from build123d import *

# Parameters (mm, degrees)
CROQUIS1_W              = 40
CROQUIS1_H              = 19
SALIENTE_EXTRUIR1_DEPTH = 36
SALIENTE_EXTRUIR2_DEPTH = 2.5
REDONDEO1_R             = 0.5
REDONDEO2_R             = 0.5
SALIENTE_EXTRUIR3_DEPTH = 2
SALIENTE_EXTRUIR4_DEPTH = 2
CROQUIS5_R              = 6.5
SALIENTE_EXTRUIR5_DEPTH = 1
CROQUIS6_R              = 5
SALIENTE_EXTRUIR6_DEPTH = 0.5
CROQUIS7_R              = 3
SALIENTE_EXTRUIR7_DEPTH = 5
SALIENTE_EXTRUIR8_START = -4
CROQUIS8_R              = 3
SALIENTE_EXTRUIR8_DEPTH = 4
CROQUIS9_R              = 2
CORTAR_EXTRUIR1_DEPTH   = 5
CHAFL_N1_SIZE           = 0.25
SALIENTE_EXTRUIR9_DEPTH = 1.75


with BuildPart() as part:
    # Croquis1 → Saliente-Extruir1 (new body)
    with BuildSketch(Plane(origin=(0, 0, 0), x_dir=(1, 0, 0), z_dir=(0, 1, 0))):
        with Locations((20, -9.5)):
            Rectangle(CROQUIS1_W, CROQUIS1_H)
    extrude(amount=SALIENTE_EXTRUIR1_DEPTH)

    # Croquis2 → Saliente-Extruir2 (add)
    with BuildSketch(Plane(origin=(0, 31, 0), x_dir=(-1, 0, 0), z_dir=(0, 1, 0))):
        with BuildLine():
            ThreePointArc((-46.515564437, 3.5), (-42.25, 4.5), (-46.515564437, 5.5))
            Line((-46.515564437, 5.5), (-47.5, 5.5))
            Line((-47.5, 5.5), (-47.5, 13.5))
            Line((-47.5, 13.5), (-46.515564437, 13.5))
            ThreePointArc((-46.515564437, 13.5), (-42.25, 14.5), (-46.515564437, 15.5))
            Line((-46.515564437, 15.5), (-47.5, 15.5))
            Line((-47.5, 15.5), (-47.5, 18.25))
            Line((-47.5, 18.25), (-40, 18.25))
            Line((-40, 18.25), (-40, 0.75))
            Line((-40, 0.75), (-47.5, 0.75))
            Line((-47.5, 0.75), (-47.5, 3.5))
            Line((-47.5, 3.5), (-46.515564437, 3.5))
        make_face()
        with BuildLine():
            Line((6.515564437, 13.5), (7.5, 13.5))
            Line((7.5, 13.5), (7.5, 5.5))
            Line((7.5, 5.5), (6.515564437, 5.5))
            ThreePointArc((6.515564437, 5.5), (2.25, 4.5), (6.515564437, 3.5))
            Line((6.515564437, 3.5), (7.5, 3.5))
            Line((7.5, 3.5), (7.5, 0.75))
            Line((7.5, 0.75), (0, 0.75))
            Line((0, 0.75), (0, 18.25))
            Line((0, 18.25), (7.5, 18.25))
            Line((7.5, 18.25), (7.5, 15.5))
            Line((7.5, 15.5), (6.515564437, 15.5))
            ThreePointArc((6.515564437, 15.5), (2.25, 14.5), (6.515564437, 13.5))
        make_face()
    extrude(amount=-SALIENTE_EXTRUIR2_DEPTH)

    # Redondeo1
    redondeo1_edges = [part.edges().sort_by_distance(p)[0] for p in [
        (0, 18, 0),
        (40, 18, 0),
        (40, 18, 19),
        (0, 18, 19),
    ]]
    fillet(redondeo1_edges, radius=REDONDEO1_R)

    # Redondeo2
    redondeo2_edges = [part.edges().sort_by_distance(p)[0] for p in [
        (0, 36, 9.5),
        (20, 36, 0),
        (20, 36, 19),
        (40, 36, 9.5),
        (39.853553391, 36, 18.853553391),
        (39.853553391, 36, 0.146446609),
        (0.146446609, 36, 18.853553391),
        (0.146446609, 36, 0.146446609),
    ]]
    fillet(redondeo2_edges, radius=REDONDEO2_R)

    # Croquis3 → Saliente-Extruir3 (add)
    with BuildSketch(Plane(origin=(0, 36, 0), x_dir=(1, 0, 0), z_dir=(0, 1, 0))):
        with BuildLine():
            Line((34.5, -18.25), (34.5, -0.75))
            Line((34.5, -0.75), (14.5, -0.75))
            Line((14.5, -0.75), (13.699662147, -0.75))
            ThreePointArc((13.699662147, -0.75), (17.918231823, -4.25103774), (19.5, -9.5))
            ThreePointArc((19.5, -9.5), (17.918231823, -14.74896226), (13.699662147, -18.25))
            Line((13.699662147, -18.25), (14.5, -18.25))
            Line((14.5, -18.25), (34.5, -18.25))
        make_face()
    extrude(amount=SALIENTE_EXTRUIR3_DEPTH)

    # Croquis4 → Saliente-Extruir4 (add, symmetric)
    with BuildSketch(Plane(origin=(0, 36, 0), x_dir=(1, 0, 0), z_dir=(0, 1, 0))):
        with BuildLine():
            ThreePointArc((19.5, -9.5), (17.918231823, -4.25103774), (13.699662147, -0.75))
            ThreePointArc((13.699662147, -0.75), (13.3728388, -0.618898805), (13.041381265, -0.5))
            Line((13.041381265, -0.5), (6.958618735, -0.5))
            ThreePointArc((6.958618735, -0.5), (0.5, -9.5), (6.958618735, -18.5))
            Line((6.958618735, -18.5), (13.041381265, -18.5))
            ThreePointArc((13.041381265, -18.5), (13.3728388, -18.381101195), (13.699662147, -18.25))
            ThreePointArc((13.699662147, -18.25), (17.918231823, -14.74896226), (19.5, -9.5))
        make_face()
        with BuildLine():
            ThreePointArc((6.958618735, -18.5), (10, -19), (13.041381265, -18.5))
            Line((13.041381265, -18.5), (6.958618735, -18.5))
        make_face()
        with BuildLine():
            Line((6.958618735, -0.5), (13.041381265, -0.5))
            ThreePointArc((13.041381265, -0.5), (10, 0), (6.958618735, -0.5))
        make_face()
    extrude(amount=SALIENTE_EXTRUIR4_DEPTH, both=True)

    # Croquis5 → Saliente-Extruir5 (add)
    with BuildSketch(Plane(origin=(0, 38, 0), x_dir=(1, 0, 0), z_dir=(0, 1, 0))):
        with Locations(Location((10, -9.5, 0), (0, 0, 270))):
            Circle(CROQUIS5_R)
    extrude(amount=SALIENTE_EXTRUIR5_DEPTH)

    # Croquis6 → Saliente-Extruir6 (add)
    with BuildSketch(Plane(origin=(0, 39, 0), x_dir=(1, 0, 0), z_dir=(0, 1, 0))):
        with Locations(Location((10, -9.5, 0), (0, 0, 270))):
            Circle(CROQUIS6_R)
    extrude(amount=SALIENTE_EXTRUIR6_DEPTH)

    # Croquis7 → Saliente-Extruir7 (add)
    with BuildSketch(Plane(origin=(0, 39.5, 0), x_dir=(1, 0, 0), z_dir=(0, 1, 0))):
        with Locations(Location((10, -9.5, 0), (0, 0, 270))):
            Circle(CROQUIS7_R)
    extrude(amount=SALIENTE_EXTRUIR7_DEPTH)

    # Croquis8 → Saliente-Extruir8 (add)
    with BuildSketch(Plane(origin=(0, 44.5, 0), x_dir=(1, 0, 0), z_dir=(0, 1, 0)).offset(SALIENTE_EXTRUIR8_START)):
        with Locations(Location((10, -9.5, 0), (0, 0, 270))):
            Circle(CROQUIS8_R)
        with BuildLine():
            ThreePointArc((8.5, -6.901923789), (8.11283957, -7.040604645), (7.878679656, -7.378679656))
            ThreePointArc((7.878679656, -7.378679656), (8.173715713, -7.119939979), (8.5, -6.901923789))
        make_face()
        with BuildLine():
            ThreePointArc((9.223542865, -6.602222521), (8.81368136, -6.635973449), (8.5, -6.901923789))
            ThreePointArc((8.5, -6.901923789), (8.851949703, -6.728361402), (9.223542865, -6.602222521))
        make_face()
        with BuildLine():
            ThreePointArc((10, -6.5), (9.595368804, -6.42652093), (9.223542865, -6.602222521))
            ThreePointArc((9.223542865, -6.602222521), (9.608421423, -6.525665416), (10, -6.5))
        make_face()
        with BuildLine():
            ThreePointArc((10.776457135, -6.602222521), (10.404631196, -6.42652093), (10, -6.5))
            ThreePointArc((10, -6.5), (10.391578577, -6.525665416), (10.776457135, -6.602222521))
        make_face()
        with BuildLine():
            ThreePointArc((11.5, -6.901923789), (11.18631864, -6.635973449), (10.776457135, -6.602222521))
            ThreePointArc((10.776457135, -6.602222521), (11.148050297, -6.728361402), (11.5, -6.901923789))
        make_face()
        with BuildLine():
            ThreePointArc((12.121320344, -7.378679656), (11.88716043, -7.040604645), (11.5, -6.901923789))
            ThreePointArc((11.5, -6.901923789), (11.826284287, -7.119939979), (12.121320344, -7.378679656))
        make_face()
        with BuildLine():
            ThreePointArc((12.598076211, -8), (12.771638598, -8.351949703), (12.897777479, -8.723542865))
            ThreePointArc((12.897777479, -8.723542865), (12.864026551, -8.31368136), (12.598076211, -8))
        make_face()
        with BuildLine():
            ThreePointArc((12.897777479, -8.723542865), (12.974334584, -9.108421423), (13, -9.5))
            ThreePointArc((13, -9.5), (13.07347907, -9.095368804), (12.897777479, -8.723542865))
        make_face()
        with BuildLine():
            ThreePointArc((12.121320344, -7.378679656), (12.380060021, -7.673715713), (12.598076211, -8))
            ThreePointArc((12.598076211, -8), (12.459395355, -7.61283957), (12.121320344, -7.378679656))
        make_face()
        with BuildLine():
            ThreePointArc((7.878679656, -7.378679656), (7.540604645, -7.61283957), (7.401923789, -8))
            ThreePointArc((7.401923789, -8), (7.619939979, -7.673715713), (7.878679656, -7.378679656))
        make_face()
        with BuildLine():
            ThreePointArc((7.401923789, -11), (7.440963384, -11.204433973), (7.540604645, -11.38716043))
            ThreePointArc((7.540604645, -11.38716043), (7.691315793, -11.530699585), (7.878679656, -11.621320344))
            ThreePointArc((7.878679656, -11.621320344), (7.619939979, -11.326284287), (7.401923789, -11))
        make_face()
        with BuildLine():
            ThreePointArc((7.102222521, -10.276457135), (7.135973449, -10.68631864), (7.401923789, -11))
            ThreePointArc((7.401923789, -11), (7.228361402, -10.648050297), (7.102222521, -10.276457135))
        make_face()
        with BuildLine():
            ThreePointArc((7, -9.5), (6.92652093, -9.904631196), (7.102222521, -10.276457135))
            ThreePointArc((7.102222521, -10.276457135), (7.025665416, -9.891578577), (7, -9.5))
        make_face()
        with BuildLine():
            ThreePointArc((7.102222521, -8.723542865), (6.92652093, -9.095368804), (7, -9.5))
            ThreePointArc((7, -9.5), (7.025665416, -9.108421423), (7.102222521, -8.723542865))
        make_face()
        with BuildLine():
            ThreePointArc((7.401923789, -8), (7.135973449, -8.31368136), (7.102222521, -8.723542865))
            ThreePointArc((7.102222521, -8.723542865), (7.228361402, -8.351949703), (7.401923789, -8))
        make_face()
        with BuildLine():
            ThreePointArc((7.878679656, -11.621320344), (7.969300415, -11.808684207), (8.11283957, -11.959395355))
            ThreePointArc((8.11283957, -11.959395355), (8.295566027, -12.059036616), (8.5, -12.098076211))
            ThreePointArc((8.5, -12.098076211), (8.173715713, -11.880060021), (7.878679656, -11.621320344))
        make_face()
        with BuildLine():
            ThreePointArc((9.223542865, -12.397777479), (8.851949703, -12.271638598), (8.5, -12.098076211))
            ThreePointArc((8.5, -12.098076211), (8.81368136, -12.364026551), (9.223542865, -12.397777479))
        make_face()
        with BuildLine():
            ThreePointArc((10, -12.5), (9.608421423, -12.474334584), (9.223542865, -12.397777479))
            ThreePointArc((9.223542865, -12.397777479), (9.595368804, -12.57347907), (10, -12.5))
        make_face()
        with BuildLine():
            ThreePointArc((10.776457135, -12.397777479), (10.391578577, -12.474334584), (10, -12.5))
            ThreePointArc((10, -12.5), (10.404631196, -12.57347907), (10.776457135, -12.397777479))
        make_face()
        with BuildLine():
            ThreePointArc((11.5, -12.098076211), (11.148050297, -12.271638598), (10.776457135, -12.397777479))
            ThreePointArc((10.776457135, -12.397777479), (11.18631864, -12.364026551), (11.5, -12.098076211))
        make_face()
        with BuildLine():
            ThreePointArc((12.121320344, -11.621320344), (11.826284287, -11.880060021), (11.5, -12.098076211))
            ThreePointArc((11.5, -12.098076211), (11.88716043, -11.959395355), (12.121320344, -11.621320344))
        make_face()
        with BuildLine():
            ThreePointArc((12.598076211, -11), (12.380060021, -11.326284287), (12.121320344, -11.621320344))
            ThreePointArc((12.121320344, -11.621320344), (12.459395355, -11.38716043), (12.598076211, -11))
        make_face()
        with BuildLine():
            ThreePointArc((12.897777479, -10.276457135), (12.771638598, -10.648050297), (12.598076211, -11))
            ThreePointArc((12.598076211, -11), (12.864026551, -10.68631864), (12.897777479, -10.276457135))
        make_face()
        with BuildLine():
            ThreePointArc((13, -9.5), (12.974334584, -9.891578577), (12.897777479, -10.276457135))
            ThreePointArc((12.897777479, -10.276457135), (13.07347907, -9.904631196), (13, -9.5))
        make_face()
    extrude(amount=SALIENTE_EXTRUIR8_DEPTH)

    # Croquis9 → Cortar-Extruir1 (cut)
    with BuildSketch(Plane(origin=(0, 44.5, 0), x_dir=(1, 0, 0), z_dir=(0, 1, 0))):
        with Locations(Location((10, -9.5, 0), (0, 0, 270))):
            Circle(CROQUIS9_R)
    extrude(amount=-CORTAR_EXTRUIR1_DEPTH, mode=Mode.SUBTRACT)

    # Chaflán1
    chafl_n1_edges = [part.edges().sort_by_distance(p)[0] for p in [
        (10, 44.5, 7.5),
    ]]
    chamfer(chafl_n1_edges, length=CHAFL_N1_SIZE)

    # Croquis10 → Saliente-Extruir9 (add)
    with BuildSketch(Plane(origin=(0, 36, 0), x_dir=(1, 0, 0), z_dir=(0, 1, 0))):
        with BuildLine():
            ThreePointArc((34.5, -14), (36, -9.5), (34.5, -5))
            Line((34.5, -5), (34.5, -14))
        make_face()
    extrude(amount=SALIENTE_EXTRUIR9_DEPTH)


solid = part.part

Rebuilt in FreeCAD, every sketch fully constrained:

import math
import FreeCAD as App
import Part
import Sketcher
Q = App.Units.Quantity


def edges_at(feature, points):
    """Names of the edges that pass closest to the given points."""
    edges = feature.Shape.Edges
    near = lambda p: min(range(len(edges)), key=lambda i: edges[i].distToShape(Part.Vertex(*p))[0])
    return sorted({f"Edge{near(p) + 1}" for p in points})


def add_polygon(sketch, points):
    """Adds a closed chain of lines whose ends are joined by coincident constraints."""
    first, n = sketch.GeometryCount, len(points)
    for a, b in zip(points, points[1:] + points[:1]):
        sketch.addGeometry(Part.LineSegment(App.Vector(*a, 0), App.Vector(*b, 0)), False)
    for i in range(n):
        sketch.addConstraint(Sketcher.Constraint("Coincident", first + i, 2, first + (i + 1) % n, 1))

doc = App.newDocument("Part")
body = doc.addObject("PartDesign::Body", "Body")

sketch1 = body.newObject("Sketcher::SketchObject", "Sketch")
sketch1.AttachmentSupport = (doc.getObject("XZ_Plane"), [""])
sketch1.MapMode = "FlatFace"
add_polygon(sketch1, [(0, 0), (0, 19), (40, 19), (40, 0)])
sketch1.addConstraint([
    Sketcher.Constraint("Vertical", 0),
    Sketcher.Constraint("Horizontal", 1),
    Sketcher.Constraint("Vertical", 2),
    Sketcher.Constraint("Horizontal", 3),
    Sketcher.Constraint("Coincident", 3, 2, -1, 1),
    Sketcher.Constraint("DistanceX", 1, 1, 1, 2, Q("40 mm")),
    Sketcher.Constraint("DistanceY", 0, 1, 0, 2, Q("19 mm")),
])
pad1 = body.newObject("PartDesign::Pad", "Pad")
pad1.Profile = sketch1
pad1.Length = 36
pad1.Reversed = True

sketch2 = body.newObject("Sketcher::SketchObject", "Sketch001")
sketch2.AttachmentSupport = (doc.getObject("XZ_Plane"), [""])
sketch2.MapMode = "FlatFace"
sketch2.AttachmentOffset = App.Placement(App.Vector(0, 0, -31), App.Rotation())
sketch2.addGeometry([
    Part.ArcOfCircle(Part.Circle(App.Vector(44.5, 4.5, 0), App.Vector(0, 0, 1), 2.2), math.radians(26), math.radians(334)),
    Part.LineSegment(App.Vector(46.5, 3.5, 0), App.Vector(47.5, 3.5, 0)),
    Part.LineSegment(App.Vector(47.5, 3.5, 0), App.Vector(47.5, 0.8, 0)),
    Part.LineSegment(App.Vector(47.5, 0.8, 0), App.Vector(40, 0.8, 0)),
    Part.LineSegment(App.Vector(40, 0.8, 0), App.Vector(40, 18.2, 0)),
    Part.LineSegment(App.Vector(40, 18.2, 0), App.Vector(47.5, 18.2, 0)),
    Part.LineSegment(App.Vector(47.5, 18.2, 0), App.Vector(47.5, 15.5, 0)),
    Part.LineSegment(App.Vector(47.5, 15.5, 0), App.Vector(46.5, 15.5, 0)),
    Part.ArcOfCircle(Part.Circle(App.Vector(44.5, 14.5, 0), App.Vector(0, 0, 1), 2.2), math.radians(26), math.radians(334)),
    Part.LineSegment(App.Vector(46.5, 13.5, 0), App.Vector(47.5, 13.5, 0)),
    Part.LineSegment(App.Vector(47.5, 13.5, 0), App.Vector(47.5, 5.5, 0)),
    Part.LineSegment(App.Vector(47.5, 5.5, 0), App.Vector(46.5, 5.5, 0)),
    Part.LineSegment(App.Vector(-7.5, 13.5, 0), App.Vector(-6.5, 13.5, 0)),
    Part.ArcOfCircle(Part.Circle(App.Vector(-4.5, 14.5, 0), App.Vector(0, 0, 1), 2.2), math.radians(-154), math.radians(154)),
    Part.LineSegment(App.Vector(-6.5, 15.5, 0), App.Vector(-7.5, 15.5, 0)),
    Part.LineSegment(App.Vector(-7.5, 15.5, 0), App.Vector(-7.5, 18.2, 0)),
    Part.LineSegment(App.Vector(-7.5, 18.2, 0), App.Vector(0, 18.2, 0)),
    Part.LineSegment(App.Vector(0, 18.2, 0), App.Vector(0, 0.8, 0)),
    Part.LineSegment(App.Vector(0, 0.8, 0), App.Vector(-7.5, 0.8, 0)),
    Part.LineSegment(App.Vector(-7.5, 0.8, 0), App.Vector(-7.5, 3.5, 0)),
    Part.LineSegment(App.Vector(-7.5, 3.5, 0), App.Vector(-6.5, 3.5, 0)),
    Part.ArcOfCircle(Part.Circle(App.Vector(-4.5, 4.5, 0), App.Vector(0, 0, 1), 2.2), math.radians(-154), math.radians(154)),
    Part.LineSegment(App.Vector(-6.5, 5.5, 0), App.Vector(-7.5, 5.5, 0)),
    Part.LineSegment(App.Vector(-7.5, 5.5, 0), App.Vector(-7.5, 13.5, 0)),
], False)
sketch2.addConstraint([
    Sketcher.Constraint("Coincident", 0, 2, 1, 1),
    Sketcher.Constraint("Coincident", 1, 2, 2, 1),
    Sketcher.Constraint("Coincident", 2, 2, 3, 1),
    Sketcher.Constraint("Coincident", 3, 2, 4, 1),
    Sketcher.Constraint("Coincident", 4, 2, 5, 1),
    Sketcher.Constraint("Coincident", 5, 2, 6, 1),
    Sketcher.Constraint("Coincident", 6, 2, 7, 1),
    Sketcher.Constraint("Coincident", 7, 2, 8, 1),
    Sketcher.Constraint("Coincident", 8, 2, 9, 1),
    Sketcher.Constraint("Coincident", 9, 2, 10, 1),
    Sketcher.Constraint("Coincident", 10, 2, 11, 1),
    Sketcher.Constraint("Coincident", 11, 2, 0, 1),
    Sketcher.Constraint("Coincident", 12, 2, 13, 1),
    Sketcher.Constraint("Coincident", 13, 2, 14, 1),
    Sketcher.Constraint("Coincident", 14, 2, 15, 1),
    Sketcher.Constraint("Coincident", 15, 2, 16, 1),
    Sketcher.Constraint("Coincident", 16, 2, 17, 1),
    Sketcher.Constraint("Coincident", 17, 2, 18, 1),
    Sketcher.Constraint("Coincident", 18, 2, 19, 1),
    Sketcher.Constraint("Coincident", 19, 2, 20, 1),
    Sketcher.Constraint("Coincident", 20, 2, 21, 1),
    Sketcher.Constraint("Coincident", 21, 2, 22, 1),
    Sketcher.Constraint("Coincident", 22, 2, 23, 1),
    Sketcher.Constraint("Coincident", 23, 2, 12, 1),
    Sketcher.Constraint("Horizontal", 1),
    Sketcher.Constraint("Vertical", 2),
    Sketcher.Constraint("Horizontal", 3),
    Sketcher.Constraint("Vertical", 4),
    Sketcher.Constraint("Horizontal", 5),
    Sketcher.Constraint("Vertical", 6),
    Sketcher.Constraint("Horizontal", 7),
    Sketcher.Constraint("Horizontal", 9),
    Sketcher.Constraint("Vertical", 10),
    Sketcher.Constraint("Horizontal", 11),
    Sketcher.Constraint("Horizontal", 12),
    Sketcher.Constraint("Horizontal", 14),
    Sketcher.Constraint("Vertical", 15),
    Sketcher.Constraint("Horizontal", 16),
    Sketcher.Constraint("Vertical", 17),
    Sketcher.Constraint("Horizontal", 18),
    Sketcher.Constraint("Vertical", 19),
    Sketcher.Constraint("Horizontal", 20),
    Sketcher.Constraint("Horizontal", 22),
    Sketcher.Constraint("Vertical", 23),
    Sketcher.Constraint("Equal", 0, 8),
    Sketcher.Constraint("Equal", 8, 13),
    Sketcher.Constraint("Equal", 13, 21),
    Sketcher.Constraint("PointOnObject", 16, 2, -2),
    Sketcher.Constraint("Horizontal", 8, 3, 13, 3),
    Sketcher.Constraint("Horizontal", 0, 3, 21, 3),
    Sketcher.Constraint("Horizontal", 9, 2, 12, 2),
    Sketcher.Constraint("Horizontal", 7, 2, 13, 2),
    Sketcher.Constraint("Horizontal", 5, 2, 15, 2),
    Sketcher.Constraint("Horizontal", 3, 2, 17, 2),
    Sketcher.Constraint("Horizontal", 1, 2, 19, 2),
    Sketcher.Constraint("Horizontal", 11, 2, 21, 2),
    Sketcher.Constraint("Vertical", 0, 3, 8, 3),
    Sketcher.Constraint("Vertical", 13, 3, 21, 3),
    Sketcher.Constraint("Vertical", 2, 2, 5, 2),
    Sketcher.Constraint("Vertical", 0, 2, 7, 2),
    Sketcher.Constraint("Vertical", 7, 2, 8, 2),
    Sketcher.Constraint("Vertical", 6, 2, 9, 2),
    Sketcher.Constraint("Vertical", 8, 2, 11, 2),
    Sketcher.Constraint("Vertical", 15, 2, 18, 2),
    Sketcher.Constraint("Vertical", 19, 2, 22, 2),
    Sketcher.Constraint("Equal", 11, 12),
    Sketcher.Constraint("Equal", 5, 16),
    Sketcher.Constraint("Equal", 2, 6),
    Sketcher.Constraint("DistanceY", 10, 2, 10, 1, Q("8 mm")),
    Sketcher.Constraint("Radius", 0, Q("2.25 mm")),
    Sketcher.Constraint("DistanceX", 3, 2, 3, 1, Q("7.5 mm")),
    Sketcher.Constraint("DistanceY", 4, 1, 4, 2, Q("17.5 mm")),
    Sketcher.Constraint("DistanceX", -1, 1, 3, 2, Q("40 mm")),
    Sketcher.Constraint("DistanceY", 0, 3, 8, 3, Q("10 mm")),
    Sketcher.Constraint("DistanceX", 13, 3, 8, 3, Q("49 mm")),
    Sketcher.Constraint("DistanceY", -1, 1, 0, 3, Q("4.5 mm")),
])
pad2 = body.newObject("PartDesign::Pad", "Pad001")
pad2.Profile = sketch2
pad2.Length = 2.5
doc.recompute()

fillet = body.newObject("PartDesign::Fillet", "Fillet")
fillet.Base = (pad2, edges_at(pad2, [
    (0, 18, 0),
    (40, 18, 0),
    (40, 18, 19),
    (0, 18, 19),
]))
fillet.Radius = 0.5
doc.recompute()

fillet2 = body.newObject("PartDesign::Fillet", "Fillet001")
fillet2.Base = (fillet, edges_at(fillet, [
    (0, 36, 9.5),
    (20, 36, 0),
    (20, 36, 19),
    (40, 36, 9.5),
    (39.854, 36, 18.854),
    (39.854, 36, 0.146),
    (0.146, 36, 18.854),
    (0.146, 36, 0.146),
]))
fillet2.Radius = 0.5

sketch3 = body.newObject("Sketcher::SketchObject", "Sketch002")
sketch3.AttachmentSupport = (doc.getObject("XZ_Plane"), [""])
sketch3.MapMode = "FlatFace"
sketch3.AttachmentOffset = App.Placement(App.Vector(0, 0, -36), App.Rotation())
sketch3.addGeometry([
    Part.LineSegment(App.Vector(34, 18, 0), App.Vector(34, 1, 0)),
    Part.LineSegment(App.Vector(34, 1, 0), App.Vector(14, 1, 0)),
    Part.ArcOfCircle(Part.Circle(App.Vector(10, 9, 0), App.Vector(0, 0, 1), 9), math.radians(-67), math.radians(0)),
    Part.ArcOfCircle(Part.Circle(App.Vector(10, 10, 0), App.Vector(0, 0, 1), 9), math.radians(0), math.radians(67)),
    Part.LineSegment(App.Vector(14, 18, 0), App.Vector(34, 18, 0)),
], False)
sketch3.addConstraint([
    Sketcher.Constraint("Coincident", 0, 2, 1, 1),
    Sketcher.Constraint("Coincident", 1, 2, 2, 1),
    Sketcher.Constraint("Tangent", 2, 2, 3, 1),
    Sketcher.Constraint("Coincident", 3, 2, 4, 1),
    Sketcher.Constraint("Coincident", 4, 2, 0, 1),
    Sketcher.Constraint("Vertical", 0),
    Sketcher.Constraint("Horizontal", 1),
    Sketcher.Constraint("Horizontal", 4),
    Sketcher.Constraint("Equal", 2, 3),
    Sketcher.Constraint("Horizontal", 3, 3, 2, 2),
    Sketcher.Constraint("Vertical", 1, 2, 3, 2),
    Sketcher.Constraint("Radius", 2, Q("9.5 mm")),
    Sketcher.Constraint("DistanceY", 0, 2, 0, 1, Q("17.5 mm")),
    Sketcher.Constraint("DistanceX", -1, 1, 2, 3, Q("10 mm")),
    Sketcher.Constraint("DistanceX", 2, 2, 0, 2, Q("15 mm")),
    Sketcher.Constraint("DistanceY", -1, 1, 2, 3, Q("9.5 mm")),
])
pad3 = body.newObject("PartDesign::Pad", "Pad002")
pad3.Profile = sketch3
pad3.Length = 2
pad3.Reversed = True

sketch4 = body.newObject("Sketcher::SketchObject", "Sketch003")
sketch4.AttachmentSupport = (doc.getObject("XZ_Plane"), [""])
sketch4.MapMode = "FlatFace"
sketch4.AttachmentOffset = App.Placement(App.Vector(0, 0, -36), App.Rotation())
sketch4.addGeometry([
    Part.ArcOfCircle(Part.Circle(App.Vector(10, 9.5, 0), App.Vector(0, 0, 1), 9.5), math.radians(-67), math.radians(0)),
    Part.ArcOfCircle(Part.Circle(App.Vector(10, 9.5, 0), App.Vector(0, 0, 1), 9.5), math.radians(-71.33), math.radians(-67.08)),
    Part.ArcOfCircle(Part.Circle(App.Vector(10, 9.5, 0), App.Vector(0, 0, 1), 9.5), math.radians(-109), math.radians(-71)),
    Part.ArcOfCircle(Part.Circle(App.Vector(10, 9.5, 0), App.Vector(0, 0, 1), 9.5), math.radians(109), math.radians(251)),
    Part.ArcOfCircle(Part.Circle(App.Vector(10, 9.5, 0), App.Vector(0, 0, 1), 9.5), math.radians(71), math.radians(109)),
    Part.ArcOfCircle(Part.Circle(App.Vector(10, 9.5, 0), App.Vector(0, 0, 1), 9.5), math.radians(67.08), math.radians(71.33)),
    Part.ArcOfCircle(Part.Circle(App.Vector(10, 9.5, 0), App.Vector(0, 0, 1), 9.5), math.radians(0), math.radians(67)),
], False)
sketch4.addConstraint([
    Sketcher.Constraint("Tangent", 0, 1, 1, 2),
    Sketcher.Constraint("Tangent", 1, 1, 2, 2),
    Sketcher.Constraint("Tangent", 2, 1, 3, 2),
    Sketcher.Constraint("Tangent", 3, 1, 4, 2),
    Sketcher.Constraint("Tangent", 4, 1, 5, 2),
    Sketcher.Constraint("Tangent", 5, 1, 6, 2),
    Sketcher.Constraint("Tangent", 6, 1, 0, 2),
    Sketcher.Constraint("Coincident", 2, 3, 0, 3),
    Sketcher.Constraint("Coincident", 4, 3, 0, 3),
    Sketcher.Constraint("Horizontal", 1, 1, 2, 1),
    Sketcher.Constraint("Horizontal", 3, 1, 4, 1),
    Sketcher.Constraint("Horizontal", 5, 3, 6, 1),
    Sketcher.Constraint("Vertical", 2, 1, 3, 1),
    Sketcher.Constraint("Vertical", 0, 1, 5, 1),
    Sketcher.Constraint("Radius", 0, Q("9.5 mm")),
    Sketcher.Constraint("DistanceX", -1, 1, 0, 3, Q("10 mm")),
    Sketcher.Constraint("DistanceY", 1, 1, 1, 3, Q("9 mm")),
    Sketcher.Constraint("DistanceY", -1, 1, 0, 3, Q("9.5 mm")),
    Sketcher.Constraint("DistanceY", -1, 1, 0, 1, Q("0.75 mm")),
])
pad4 = body.newObject("PartDesign::Pad", "Pad003")
pad4.Profile = sketch4
pad4.Length = 4
pad4.Midplane = True

sketch5 = body.newObject("Sketcher::SketchObject", "Sketch004")
sketch5.AttachmentSupport = (doc.getObject("XZ_Plane"), [""])
sketch5.MapMode = "FlatFace"
sketch5.AttachmentOffset = App.Placement(App.Vector(0, 0, -38), App.Rotation())
sketch5.addGeometry(Part.Circle(App.Vector(10, 10, 0), App.Vector(0, 0, 1), 6), False)
sketch5.addConstraint([
    Sketcher.Constraint("Diameter", 0, Q("13 mm")),
    Sketcher.Constraint("DistanceX", -1, 1, 0, 3, Q("10 mm")),
    Sketcher.Constraint("DistanceY", -1, 1, 0, 3, Q("9.5 mm")),
])
pad5 = body.newObject("PartDesign::Pad", "Pad004")
pad5.Profile = sketch5
pad5.Length = 1
pad5.Reversed = True

sketch6 = body.newObject("Sketcher::SketchObject", "Sketch005")
sketch6.AttachmentSupport = (doc.getObject("XZ_Plane"), [""])
sketch6.MapMode = "FlatFace"
sketch6.AttachmentOffset = App.Placement(App.Vector(0, 0, -39), App.Rotation())
sketch6.addGeometry(Part.Circle(App.Vector(10, 10, 0), App.Vector(0, 0, 1), 5), False)
sketch6.addConstraint([
    Sketcher.Constraint("Diameter", 0, Q("10 mm")),
    Sketcher.Constraint("DistanceX", -1, 1, 0, 3, Q("10 mm")),
    Sketcher.Constraint("DistanceY", -1, 1, 0, 3, Q("9.5 mm")),
])
pad6 = body.newObject("PartDesign::Pad", "Pad005")
pad6.Profile = sketch6
pad6.Length = 0.5
pad6.Reversed = True

sketch7 = body.newObject("Sketcher::SketchObject", "Sketch006")
sketch7.AttachmentSupport = (doc.getObject("XZ_Plane"), [""])
sketch7.MapMode = "FlatFace"
sketch7.AttachmentOffset = App.Placement(App.Vector(0, 0, -39.5), App.Rotation())
sketch7.addGeometry(Part.Circle(App.Vector(10, 9.5, 0), App.Vector(0, 0, 1), 3), False)
sketch7.addConstraint([
    Sketcher.Constraint("Diameter", 0, Q("6 mm")),
    Sketcher.Constraint("DistanceX", -1, 1, 0, 3, Q("10 mm")),
    Sketcher.Constraint("DistanceY", -1, 1, 0, 3, Q("9.5 mm")),
])
pad7 = body.newObject("PartDesign::Pad", "Pad006")
pad7.Profile = sketch7
pad7.Length = 5
pad7.Reversed = True

sketch8 = body.newObject("Sketcher::SketchObject", "Sketch007")
sketch8.AttachmentSupport = (doc.getObject("XZ_Plane"), [""])
sketch8.MapMode = "FlatFace"
sketch8.AttachmentOffset = App.Placement(App.Vector(0, 0, -40.5), App.Rotation())
sketch8.addGeometry([
    Part.ArcOfCircle(Part.Circle(App.Vector(8.52, 7.57, 0), App.Vector(0, 0, 1), 0.67), math.radians(-163), math.radians(-92)),
    Part.ArcOfCircle(Part.Circle(App.Vector(8.07, 8.02, 0), App.Vector(0, 0, 1), 0.67), math.radians(-178), math.radians(-107)),
    Part.ArcOfCircle(Part.Circle(App.Vector(7.76, 8.57, 0), App.Vector(0, 0, 1), 0.67), math.radians(167), math.radians(238)),
    Part.ArcOfCircle(Part.Circle(App.Vector(7.59, 9.18, 0), App.Vector(0, 0, 1), 0.67), math.radians(152), math.radians(223)),
    Part.ArcOfCircle(Part.Circle(App.Vector(7.59, 9.82, 0), App.Vector(0, 0, 1), 0.67), math.radians(137), math.radians(208)),
    Part.ArcOfCircle(Part.Circle(App.Vector(7.76, 10.43, 0), App.Vector(0, 0, 1), 0.67), math.radians(122), math.radians(193)),
    Part.ArcOfCircle(Part.Circle(App.Vector(8.07, 10.98, 0), App.Vector(0, 0, 1), 0.67), math.radians(142), math.radians(178)),
    Part.ArcOfCircle(Part.Circle(App.Vector(8.07, 10.98, 0), App.Vector(0, 0, 1), 0.67), math.radians(107), math.radians(143)),
    Part.ArcOfCircle(Part.Circle(App.Vector(8.52, 11.43, 0), App.Vector(0, 0, 1), 0.67), math.radians(127), math.radians(163)),
    Part.ArcOfCircle(Part.Circle(App.Vector(8.52, 11.43, 0), App.Vector(0, 0, 1), 0.67), math.radians(92), math.radians(128)),
    Part.ArcOfCircle(Part.Circle(App.Vector(9.07, 11.74, 0), App.Vector(0, 0, 1), 0.67), math.radians(77), math.radians(148)),
    Part.ArcOfCircle(Part.Circle(App.Vector(9.68, 11.91, 0), App.Vector(0, 0, 1), 0.67), math.radians(62), math.radians(133)),
    Part.ArcOfCircle(Part.Circle(App.Vector(10.32, 11.91, 0), App.Vector(0, 0, 1), 0.67), math.radians(47), math.radians(118)),
    Part.ArcOfCircle(Part.Circle(App.Vector(10.93, 11.74, 0), App.Vector(0, 0, 1), 0.67), math.radians(32), math.radians(103)),
    Part.ArcOfCircle(Part.Circle(App.Vector(11.48, 11.43, 0), App.Vector(0, 0, 1), 0.67), math.radians(17), math.radians(88)),
    Part.ArcOfCircle(Part.Circle(App.Vector(11.93, 10.98, 0), App.Vector(0, 0, 1), 0.67), math.radians(2), math.radians(73)),
    Part.ArcOfCircle(Part.Circle(App.Vector(12.24, 10.43, 0), App.Vector(0, 0, 1), 0.67), math.radians(-13), math.radians(58)),
    Part.ArcOfCircle(Part.Circle(App.Vector(12.41, 9.82, 0), App.Vector(0, 0, 1), 0.67), math.radians(-28), math.radians(43)),
    Part.ArcOfCircle(Part.Circle(App.Vector(12.41, 9.18, 0), App.Vector(0, 0, 1), 0.67), math.radians(-43), math.radians(28)),
    Part.ArcOfCircle(Part.Circle(App.Vector(12.24, 8.57, 0), App.Vector(0, 0, 1), 0.67), math.radians(-58), math.radians(13)),
    Part.ArcOfCircle(Part.Circle(App.Vector(11.93, 8.02, 0), App.Vector(0, 0, 1), 0.67), math.radians(-73), math.radians(-2)),
    Part.ArcOfCircle(Part.Circle(App.Vector(11.48, 7.57, 0), App.Vector(0, 0, 1), 0.67), math.radians(-88), math.radians(-17)),
    Part.ArcOfCircle(Part.Circle(App.Vector(10.93, 7.26, 0), App.Vector(0, 0, 1), 0.67), math.radians(-103), math.radians(-32)),
    Part.ArcOfCircle(Part.Circle(App.Vector(10.32, 7.09, 0), App.Vector(0, 0, 1), 0.67), math.radians(-118), math.radians(-47)),
    Part.ArcOfCircle(Part.Circle(App.Vector(9.68, 7.09, 0), App.Vector(0, 0, 1), 0.67), math.radians(-133), math.radians(-62)),
    Part.ArcOfCircle(Part.Circle(App.Vector(9.07, 7.26, 0), App.Vector(0, 0, 1), 0.67), math.radians(-148), math.radians(-77)),
], False)
sketch8.addConstraint([
    Sketcher.Constraint("Coincident", 0, 1, 1, 2),
    Sketcher.Constraint("Coincident", 1, 1, 2, 2),
    Sketcher.Constraint("Coincident", 2, 1, 3, 2),
    Sketcher.Constraint("Coincident", 3, 1, 4, 2),
    Sketcher.Constraint("Coincident", 4, 1, 5, 2),
    Sketcher.Constraint("Coincident", 5, 1, 6, 2),
    Sketcher.Constraint("Tangent", 6, 1, 7, 2),
    Sketcher.Constraint("Coincident", 7, 1, 8, 2),
    Sketcher.Constraint("Tangent", 8, 1, 9, 2),
    Sketcher.Constraint("Coincident", 9, 1, 10, 2),
    Sketcher.Constraint("Coincident", 10, 1, 11, 2),
    Sketcher.Constraint("Coincident", 11, 1, 12, 2),
    Sketcher.Constraint("Coincident", 12, 1, 13, 2),
    Sketcher.Constraint("Coincident", 13, 1, 14, 2),
    Sketcher.Constraint("Coincident", 14, 1, 15, 2),
    Sketcher.Constraint("Coincident", 15, 1, 16, 2),
    Sketcher.Constraint("Coincident", 16, 1, 17, 2),
    Sketcher.Constraint("Coincident", 17, 1, 18, 2),
    Sketcher.Constraint("Coincident", 18, 1, 19, 2),
    Sketcher.Constraint("Coincident", 19, 1, 20, 2),
    Sketcher.Constraint("Coincident", 20, 1, 21, 2),
    Sketcher.Constraint("Coincident", 21, 1, 22, 2),
    Sketcher.Constraint("Coincident", 22, 1, 23, 2),
    Sketcher.Constraint("Coincident", 23, 1, 24, 2),
    Sketcher.Constraint("Coincident", 24, 1, 25, 2),
    Sketcher.Constraint("Coincident", 25, 1, 0, 2),
    Sketcher.Constraint("Equal", 0, 1),
    Sketcher.Constraint("Equal", 1, 2),
    Sketcher.Constraint("Equal", 2, 3),
    Sketcher.Constraint("Equal", 3, 4),
    Sketcher.Constraint("Equal", 4, 5),
    Sketcher.Constraint("Equal", 5, 6),
    Sketcher.Constraint("Equal", 6, 7),
    Sketcher.Constraint("Equal", 7, 8),
    Sketcher.Constraint("Equal", 8, 9),
    Sketcher.Constraint("Equal", 9, 10),
    Sketcher.Constraint("Equal", 10, 11),
    Sketcher.Constraint("Equal", 11, 12),
    Sketcher.Constraint("Equal", 12, 13),
    Sketcher.Constraint("Equal", 13, 14),
    Sketcher.Constraint("Equal", 14, 15),
    Sketcher.Constraint("Equal", 15, 16),
    Sketcher.Constraint("Equal", 16, 17),
    Sketcher.Constraint("Equal", 17, 18),
    Sketcher.Constraint("Equal", 18, 19),
    Sketcher.Constraint("Equal", 19, 20),
    Sketcher.Constraint("Equal", 20, 21),
    Sketcher.Constraint("Equal", 21, 22),
    Sketcher.Constraint("Equal", 22, 23),
    Sketcher.Constraint("Equal", 23, 24),
    Sketcher.Constraint("Equal", 24, 25),
    Sketcher.Constraint("Horizontal", 11, 3, 12, 3),
    Sketcher.Constraint("Horizontal", 10, 3, 13, 3),
    Sketcher.Constraint("Horizontal", 9, 3, 14, 3),
    Sketcher.Constraint("Horizontal", 7, 3, 15, 3),
    Sketcher.Constraint("Horizontal", 5, 3, 16, 3),
    Sketcher.Constraint("Horizontal", 4, 3, 17, 3),
    Sketcher.Constraint("Horizontal", 3, 3, 18, 3),
    Sketcher.Constraint("Horizontal", 2, 3, 19, 3),
    Sketcher.Constraint("Horizontal", 1, 3, 20, 3),
    Sketcher.Constraint("Horizontal", 0, 3, 21, 3),
    Sketcher.Constraint("Horizontal", 23, 3, 24, 3),
    Sketcher.Constraint("Horizontal", 22, 3, 25, 3),
    Sketcher.Constraint("Horizontal", 10, 1, 12, 1),
    Sketcher.Constraint("Horizontal", 9, 1, 13, 1),
    Sketcher.Constraint("Horizontal", 7, 1, 14, 1),
    Sketcher.Constraint("Horizontal", 5, 1, 15, 1),
    Sketcher.Constraint("Horizontal", 4, 1, 16, 1),
    Sketcher.Constraint("Horizontal", 3, 1, 17, 1),
    Sketcher.Constraint("Horizontal", 2, 1, 18, 1),
    Sketcher.Constraint("Horizontal", 1, 1, 19, 1),
    Sketcher.Constraint("Horizontal", 0, 1, 20, 1),
    Sketcher.Constraint("Horizontal", 22, 1, 24, 1),
    Sketcher.Constraint("Horizontal", 21, 1, 25, 1),
    Sketcher.Constraint("Vertical", 3, 3, 4, 3),
    Sketcher.Constraint("Vertical", 2, 3, 5, 3),
    Sketcher.Constraint("Vertical", 1, 3, 6, 3),
    Sketcher.Constraint("Vertical", 0, 3, 8, 3),
    Sketcher.Constraint("Vertical", 13, 3, 22, 3),
    Sketcher.Constraint("Vertical", 12, 3, 23, 3),
    Sketcher.Constraint("Vertical", 2, 1, 4, 1),
    Sketcher.Constraint("Vertical", 1, 1, 5, 1),
    Sketcher.Constraint("Vertical", 0, 1, 7, 1),
    Sketcher.Constraint("Vertical", 13, 1, 21, 1),
    Sketcher.Constraint("Vertical", 12, 1, 22, 1),
    Sketcher.Constraint("DistanceY", -1, 1, 1, 1, Q("8 mm")),
    Sketcher.Constraint("DistanceX", -1, 1, 3, 1, Q("7 mm")),
    Sketcher.Constraint("DistanceY", -1, 1, 5, 1, Q("11 mm")),
    Sketcher.Constraint("DistanceX", -1, 1, 11, 1, Q("10 mm")),
    Sketcher.Constraint("DistanceX", -1, 1, 9, 1, Q("8.5 mm")),
    Sketcher.Constraint("DistanceY", -1, 1, 11, 1, Q("12.5 mm")),
    Sketcher.Constraint("Radius", 0, Q("0.67292 mm")),
    Sketcher.Constraint("DistanceY", 2, 3, 4, 3, Q("1.245601 mm")),
    Sketcher.Constraint("DistanceX", 10, 3, 12, 3, Q("1.245601 mm")),
    Sketcher.Constraint("DistanceX", 2, 1, 1, 1, Q("0.299701 mm")),
    Sketcher.Constraint("DistanceY", 9, 1, 10, 1, Q("0.299701 mm")),
    Sketcher.Constraint("DistanceY", -1, 1, 0, 3, Q("7.574468 mm")),
    Sketcher.Constraint("DistanceX", -1, 1, 1, 3, Q("8.074468 mm")),
    Sketcher.Constraint("DistanceX", -1, 1, 2, 3, Q("7.757671 mm")),
    Sketcher.Constraint("DistanceY", -1, 1, 10, 3, Q("11.742329 mm")),
    Sketcher.Constraint("DistanceY", -1, 1, 6, 1, Q("11.38716 mm")),
    Sketcher.Constraint("DistanceX", -1, 1, 8, 1, Q("8.11284 mm")),
])
pad8 = body.newObject("PartDesign::Pad", "Pad007")
pad8.Profile = sketch8
pad8.Length = 4
pad8.Reversed = True

sketch9 = body.newObject("Sketcher::SketchObject", "Sketch008")
sketch9.AttachmentSupport = (doc.getObject("XZ_Plane"), [""])
sketch9.MapMode = "FlatFace"
sketch9.AttachmentOffset = App.Placement(App.Vector(0, 0, -44.5), App.Rotation())
sketch9.addGeometry(Part.Circle(App.Vector(10, 9.5, 0), App.Vector(0, 0, 1), 2), False)
sketch9.addConstraint([
    Sketcher.Constraint("Diameter", 0, Q("4 mm")),
    Sketcher.Constraint("DistanceX", -1, 1, 0, 3, Q("10 mm")),
    Sketcher.Constraint("DistanceY", -1, 1, 0, 3, Q("9.5 mm")),
])
pocket1 = body.newObject("PartDesign::Pocket", "Pocket")
pocket1.Profile = sketch9
pocket1.Length = 5
pocket1.Reversed = True
doc.recompute()

chamfer = body.newObject("PartDesign::Chamfer", "Chamfer")
chamfer.Base = (pocket1, edges_at(pocket1, [(10, 44.5, 7.5)]))
chamfer.Size = 0.25

sketch10 = body.newObject("Sketcher::SketchObject", "Sketch009")
sketch10.AttachmentSupport = (doc.getObject("XZ_Plane"), [""])
sketch10.MapMode = "FlatFace"
sketch10.AttachmentOffset = App.Placement(App.Vector(0, 0, -36), App.Rotation())
sketch10.addGeometry([
    Part.ArcOfCircle(Part.Circle(App.Vector(28, 10, 0), App.Vector(0, 0, 1), 8), math.radians(-37), math.radians(37)),
    Part.LineSegment(App.Vector(34, 5, 0), App.Vector(34, 14, 0)),
], False)
sketch10.addConstraint([
    Sketcher.Constraint("Coincident", 0, 1, 1, 1),
    Sketcher.Constraint("Coincident", 1, 2, 0, 2),
    Sketcher.Constraint("Vertical", 1),
    Sketcher.Constraint("Radius", 0, Q("7.5 mm")),
    Sketcher.Constraint("DistanceY", 1, 1, 1, 2, Q("9 mm")),
    Sketcher.Constraint("DistanceY", -1, 1, 0, 1, Q("5 mm")),
    Sketcher.Constraint("DistanceX", -1, 1, 0, 3, Q("28.5 mm")),
])
pad9 = body.newObject("PartDesign::Pad", "Pad008")
pad9.Profile = sketch10
pad9.Length = 1.75
pad9.Reversed = True

doc.recompute()
